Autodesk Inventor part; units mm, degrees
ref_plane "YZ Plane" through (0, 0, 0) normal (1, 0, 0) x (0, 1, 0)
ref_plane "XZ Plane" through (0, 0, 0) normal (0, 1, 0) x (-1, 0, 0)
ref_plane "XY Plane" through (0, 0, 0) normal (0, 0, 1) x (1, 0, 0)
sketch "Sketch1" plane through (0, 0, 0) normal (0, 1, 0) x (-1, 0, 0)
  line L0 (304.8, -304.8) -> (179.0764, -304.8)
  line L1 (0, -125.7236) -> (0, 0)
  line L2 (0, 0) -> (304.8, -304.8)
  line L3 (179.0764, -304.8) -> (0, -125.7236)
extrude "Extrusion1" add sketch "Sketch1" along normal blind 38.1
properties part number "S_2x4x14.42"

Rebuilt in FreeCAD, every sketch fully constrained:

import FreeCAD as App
import Part
import Sketcher

V = App.Vector
Q = App.Units.Quantity

doc = App.newDocument("Part")
body = doc.addObject("PartDesign::Body", "Body")

sketch1 = body.newObject("Sketcher::SketchObject", "Sketch")
sketch1.AttachmentSupport = (doc.getObject("XZ_Plane"), [""])
sketch1.MapMode = "FlatFace"
sketch1.addGeometry([
    Part.LineSegment(V(-179.0764, -304.8, 0), V(-304.8, -304.8, 0)),
    Part.LineSegment(V(-304.8, -304.8, 0), V(0, 0, 0)),
    Part.LineSegment(V(0, 0, 0), V(0, -125.7236, 0)),
    Part.LineSegment(V(0, -125.7236, 0), V(-179.0764, -304.8, 0)),
], False)
sketch1.addConstraint([
    Sketcher.Constraint("Coincident", 0, 2, 1, 1),
    Sketcher.Constraint("Coincident", 1, 2, 2, 1),
    Sketcher.Constraint("Coincident", 2, 2, 3, 1),
    Sketcher.Constraint("Coincident", 3, 2, 0, 1),
    Sketcher.Constraint("Horizontal", 0),
    Sketcher.Constraint("Vertical", 2),
    Sketcher.Constraint("Coincident", 1, 2, -1, 1),
    Sketcher.Constraint("Parallel", 1, 3),
    Sketcher.Constraint("Equal", 0, 2),
    Sketcher.Constraint("DistanceX", 0, 2, -1, 1, Q("12 in")),
    Sketcher.Constraint("DistanceX", 0, 2, 0, 1, Q("125.7236 mm")),
])
pad1 = body.newObject("PartDesign::Pad", "Pad")
pad1.Profile = sketch1
pad1.Length = Q("1.5 in")
pad1.Reversed = True

doc.recompute()
